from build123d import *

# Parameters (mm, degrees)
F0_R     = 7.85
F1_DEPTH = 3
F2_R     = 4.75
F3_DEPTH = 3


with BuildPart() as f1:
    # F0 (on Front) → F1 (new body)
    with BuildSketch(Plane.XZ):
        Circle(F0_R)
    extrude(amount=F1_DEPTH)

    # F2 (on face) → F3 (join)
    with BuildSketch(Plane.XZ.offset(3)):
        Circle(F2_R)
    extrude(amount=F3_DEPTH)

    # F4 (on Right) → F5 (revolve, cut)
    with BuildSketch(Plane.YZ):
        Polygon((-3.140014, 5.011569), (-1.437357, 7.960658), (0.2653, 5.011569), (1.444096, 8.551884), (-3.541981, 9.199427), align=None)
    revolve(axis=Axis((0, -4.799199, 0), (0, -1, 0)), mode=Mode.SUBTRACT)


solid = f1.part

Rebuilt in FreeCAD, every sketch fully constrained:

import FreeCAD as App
import Part
import Sketcher

V = App.Vector
Q = App.Units.Quantity

doc = App.newDocument("Part")
body = doc.addObject("PartDesign::Body", "Body")

sketch1 = doc.addObject("Sketcher::SketchObject", "Sketch")
body.addObject(sketch1)
sketch1.AttachmentSupport = (doc.XZ_Plane, [""])
sketch1.MapMode = "FlatFace"
sketch1.addGeometry(Part.Circle(V(0, 0, 0), V(0, 0, 1), 7.85), False)
sketch1.addConstraint([
    Sketcher.Constraint("Coincident", 0, 3, -1, 1),
    Sketcher.Constraint("Diameter", 0, Q("15.7 mm")),
])
pad1 = doc.addObject("PartDesign::Pad", "Pad")
body.addObject(pad1)
pad1.Profile = sketch1
pad1.Length = 3

sketch2 = doc.addObject("Sketcher::SketchObject", "Sketch001")
body.addObject(sketch2)
sketch2.AttachmentSupport = (doc.XZ_Plane, [""])
sketch2.MapMode = "FlatFace"
sketch2.AttachmentOffset = App.Placement(V(0, 0, 3), App.Rotation())
sketch2.addGeometry(Part.Circle(V(0, 0, 0), V(0, 0, 1), 4.75), False)
sketch2.addConstraint([
    Sketcher.Constraint("Coincident", 0, 3, -1, 1),
    Sketcher.Constraint("Diameter", 0, Q("9.5 mm")),
])
pad2 = doc.addObject("PartDesign::Pad", "Pad001")
body.addObject(pad2)
pad2.Profile = sketch2
pad2.Length = 3

sketch3 = doc.addObject("Sketcher::SketchObject", "Sketch002")
body.addObject(sketch3)
sketch3.AttachmentSupport = (doc.YZ_Plane, [""])
sketch3.MapMode = "FlatFace"
sketch3.addGeometry([
    Part.LineSegment(V(-3.140014, 5.011569, 0), V(-1.437357, 7.960658, 0)),
    Part.LineSegment(V(-1.437357, 7.960658, 0), V(0.2653, 5.011569, 0)),
    Part.LineSegment(V(0.2653, 5.011569, 0), V(1.444096, 8.551884, 0)),
    Part.LineSegment(V(1.444096, 8.551884, 0), V(-3.541981, 9.199427, 0)),
    Part.LineSegment(V(-3.541981, 9.199427, 0), V(-3.140014, 5.011569, 0)),
], False)
sketch3.addConstraint([
    Sketcher.Constraint("Coincident", 0, 2, 1, 1),
    Sketcher.Constraint("Coincident", 1, 2, 2, 1),
    Sketcher.Constraint("Coincident", 2, 2, 3, 1),
    Sketcher.Constraint("Coincident", 3, 2, 4, 1),
    Sketcher.Constraint("Coincident", 4, 2, 0, 1),
    Sketcher.Constraint("Horizontal", 1, 2, 4, 2),
    Sketcher.Constraint("Equal", 0, 1),
    Sketcher.Constraint("Angle", 0, Q("60.000005 deg")),
    Sketcher.Constraint("DistanceX", -1, 1, 1, 2, Q("0.2653 mm")),
    Sketcher.Constraint("Distance", 3, Q("5.027949 mm")),
    Sketcher.Constraint("DistanceY", -1, 1, 1, 2, Q("5.011569 mm")),
    Sketcher.Constraint("DistanceX", 3, 2, -1, 1, Q("3.541981 mm")),
    Sketcher.Constraint("DistanceY", 1, 2, 0, 2, Q("2.949089 mm")),
    Sketcher.Constraint("DistanceY", 0, 2, 3, 2, Q("1.238769 mm")),
    Sketcher.Constraint("DistanceX", 4, 2, 2, 2, Q("4.58411 mm")),
])
groove = doc.addObject("PartDesign::Groove", "Groove")
body.addObject(groove)
groove.Profile = sketch3
groove.ReferenceAxis = (sketch3, ["H_Axis"])
groove.Angle = 360

doc.recompute()
